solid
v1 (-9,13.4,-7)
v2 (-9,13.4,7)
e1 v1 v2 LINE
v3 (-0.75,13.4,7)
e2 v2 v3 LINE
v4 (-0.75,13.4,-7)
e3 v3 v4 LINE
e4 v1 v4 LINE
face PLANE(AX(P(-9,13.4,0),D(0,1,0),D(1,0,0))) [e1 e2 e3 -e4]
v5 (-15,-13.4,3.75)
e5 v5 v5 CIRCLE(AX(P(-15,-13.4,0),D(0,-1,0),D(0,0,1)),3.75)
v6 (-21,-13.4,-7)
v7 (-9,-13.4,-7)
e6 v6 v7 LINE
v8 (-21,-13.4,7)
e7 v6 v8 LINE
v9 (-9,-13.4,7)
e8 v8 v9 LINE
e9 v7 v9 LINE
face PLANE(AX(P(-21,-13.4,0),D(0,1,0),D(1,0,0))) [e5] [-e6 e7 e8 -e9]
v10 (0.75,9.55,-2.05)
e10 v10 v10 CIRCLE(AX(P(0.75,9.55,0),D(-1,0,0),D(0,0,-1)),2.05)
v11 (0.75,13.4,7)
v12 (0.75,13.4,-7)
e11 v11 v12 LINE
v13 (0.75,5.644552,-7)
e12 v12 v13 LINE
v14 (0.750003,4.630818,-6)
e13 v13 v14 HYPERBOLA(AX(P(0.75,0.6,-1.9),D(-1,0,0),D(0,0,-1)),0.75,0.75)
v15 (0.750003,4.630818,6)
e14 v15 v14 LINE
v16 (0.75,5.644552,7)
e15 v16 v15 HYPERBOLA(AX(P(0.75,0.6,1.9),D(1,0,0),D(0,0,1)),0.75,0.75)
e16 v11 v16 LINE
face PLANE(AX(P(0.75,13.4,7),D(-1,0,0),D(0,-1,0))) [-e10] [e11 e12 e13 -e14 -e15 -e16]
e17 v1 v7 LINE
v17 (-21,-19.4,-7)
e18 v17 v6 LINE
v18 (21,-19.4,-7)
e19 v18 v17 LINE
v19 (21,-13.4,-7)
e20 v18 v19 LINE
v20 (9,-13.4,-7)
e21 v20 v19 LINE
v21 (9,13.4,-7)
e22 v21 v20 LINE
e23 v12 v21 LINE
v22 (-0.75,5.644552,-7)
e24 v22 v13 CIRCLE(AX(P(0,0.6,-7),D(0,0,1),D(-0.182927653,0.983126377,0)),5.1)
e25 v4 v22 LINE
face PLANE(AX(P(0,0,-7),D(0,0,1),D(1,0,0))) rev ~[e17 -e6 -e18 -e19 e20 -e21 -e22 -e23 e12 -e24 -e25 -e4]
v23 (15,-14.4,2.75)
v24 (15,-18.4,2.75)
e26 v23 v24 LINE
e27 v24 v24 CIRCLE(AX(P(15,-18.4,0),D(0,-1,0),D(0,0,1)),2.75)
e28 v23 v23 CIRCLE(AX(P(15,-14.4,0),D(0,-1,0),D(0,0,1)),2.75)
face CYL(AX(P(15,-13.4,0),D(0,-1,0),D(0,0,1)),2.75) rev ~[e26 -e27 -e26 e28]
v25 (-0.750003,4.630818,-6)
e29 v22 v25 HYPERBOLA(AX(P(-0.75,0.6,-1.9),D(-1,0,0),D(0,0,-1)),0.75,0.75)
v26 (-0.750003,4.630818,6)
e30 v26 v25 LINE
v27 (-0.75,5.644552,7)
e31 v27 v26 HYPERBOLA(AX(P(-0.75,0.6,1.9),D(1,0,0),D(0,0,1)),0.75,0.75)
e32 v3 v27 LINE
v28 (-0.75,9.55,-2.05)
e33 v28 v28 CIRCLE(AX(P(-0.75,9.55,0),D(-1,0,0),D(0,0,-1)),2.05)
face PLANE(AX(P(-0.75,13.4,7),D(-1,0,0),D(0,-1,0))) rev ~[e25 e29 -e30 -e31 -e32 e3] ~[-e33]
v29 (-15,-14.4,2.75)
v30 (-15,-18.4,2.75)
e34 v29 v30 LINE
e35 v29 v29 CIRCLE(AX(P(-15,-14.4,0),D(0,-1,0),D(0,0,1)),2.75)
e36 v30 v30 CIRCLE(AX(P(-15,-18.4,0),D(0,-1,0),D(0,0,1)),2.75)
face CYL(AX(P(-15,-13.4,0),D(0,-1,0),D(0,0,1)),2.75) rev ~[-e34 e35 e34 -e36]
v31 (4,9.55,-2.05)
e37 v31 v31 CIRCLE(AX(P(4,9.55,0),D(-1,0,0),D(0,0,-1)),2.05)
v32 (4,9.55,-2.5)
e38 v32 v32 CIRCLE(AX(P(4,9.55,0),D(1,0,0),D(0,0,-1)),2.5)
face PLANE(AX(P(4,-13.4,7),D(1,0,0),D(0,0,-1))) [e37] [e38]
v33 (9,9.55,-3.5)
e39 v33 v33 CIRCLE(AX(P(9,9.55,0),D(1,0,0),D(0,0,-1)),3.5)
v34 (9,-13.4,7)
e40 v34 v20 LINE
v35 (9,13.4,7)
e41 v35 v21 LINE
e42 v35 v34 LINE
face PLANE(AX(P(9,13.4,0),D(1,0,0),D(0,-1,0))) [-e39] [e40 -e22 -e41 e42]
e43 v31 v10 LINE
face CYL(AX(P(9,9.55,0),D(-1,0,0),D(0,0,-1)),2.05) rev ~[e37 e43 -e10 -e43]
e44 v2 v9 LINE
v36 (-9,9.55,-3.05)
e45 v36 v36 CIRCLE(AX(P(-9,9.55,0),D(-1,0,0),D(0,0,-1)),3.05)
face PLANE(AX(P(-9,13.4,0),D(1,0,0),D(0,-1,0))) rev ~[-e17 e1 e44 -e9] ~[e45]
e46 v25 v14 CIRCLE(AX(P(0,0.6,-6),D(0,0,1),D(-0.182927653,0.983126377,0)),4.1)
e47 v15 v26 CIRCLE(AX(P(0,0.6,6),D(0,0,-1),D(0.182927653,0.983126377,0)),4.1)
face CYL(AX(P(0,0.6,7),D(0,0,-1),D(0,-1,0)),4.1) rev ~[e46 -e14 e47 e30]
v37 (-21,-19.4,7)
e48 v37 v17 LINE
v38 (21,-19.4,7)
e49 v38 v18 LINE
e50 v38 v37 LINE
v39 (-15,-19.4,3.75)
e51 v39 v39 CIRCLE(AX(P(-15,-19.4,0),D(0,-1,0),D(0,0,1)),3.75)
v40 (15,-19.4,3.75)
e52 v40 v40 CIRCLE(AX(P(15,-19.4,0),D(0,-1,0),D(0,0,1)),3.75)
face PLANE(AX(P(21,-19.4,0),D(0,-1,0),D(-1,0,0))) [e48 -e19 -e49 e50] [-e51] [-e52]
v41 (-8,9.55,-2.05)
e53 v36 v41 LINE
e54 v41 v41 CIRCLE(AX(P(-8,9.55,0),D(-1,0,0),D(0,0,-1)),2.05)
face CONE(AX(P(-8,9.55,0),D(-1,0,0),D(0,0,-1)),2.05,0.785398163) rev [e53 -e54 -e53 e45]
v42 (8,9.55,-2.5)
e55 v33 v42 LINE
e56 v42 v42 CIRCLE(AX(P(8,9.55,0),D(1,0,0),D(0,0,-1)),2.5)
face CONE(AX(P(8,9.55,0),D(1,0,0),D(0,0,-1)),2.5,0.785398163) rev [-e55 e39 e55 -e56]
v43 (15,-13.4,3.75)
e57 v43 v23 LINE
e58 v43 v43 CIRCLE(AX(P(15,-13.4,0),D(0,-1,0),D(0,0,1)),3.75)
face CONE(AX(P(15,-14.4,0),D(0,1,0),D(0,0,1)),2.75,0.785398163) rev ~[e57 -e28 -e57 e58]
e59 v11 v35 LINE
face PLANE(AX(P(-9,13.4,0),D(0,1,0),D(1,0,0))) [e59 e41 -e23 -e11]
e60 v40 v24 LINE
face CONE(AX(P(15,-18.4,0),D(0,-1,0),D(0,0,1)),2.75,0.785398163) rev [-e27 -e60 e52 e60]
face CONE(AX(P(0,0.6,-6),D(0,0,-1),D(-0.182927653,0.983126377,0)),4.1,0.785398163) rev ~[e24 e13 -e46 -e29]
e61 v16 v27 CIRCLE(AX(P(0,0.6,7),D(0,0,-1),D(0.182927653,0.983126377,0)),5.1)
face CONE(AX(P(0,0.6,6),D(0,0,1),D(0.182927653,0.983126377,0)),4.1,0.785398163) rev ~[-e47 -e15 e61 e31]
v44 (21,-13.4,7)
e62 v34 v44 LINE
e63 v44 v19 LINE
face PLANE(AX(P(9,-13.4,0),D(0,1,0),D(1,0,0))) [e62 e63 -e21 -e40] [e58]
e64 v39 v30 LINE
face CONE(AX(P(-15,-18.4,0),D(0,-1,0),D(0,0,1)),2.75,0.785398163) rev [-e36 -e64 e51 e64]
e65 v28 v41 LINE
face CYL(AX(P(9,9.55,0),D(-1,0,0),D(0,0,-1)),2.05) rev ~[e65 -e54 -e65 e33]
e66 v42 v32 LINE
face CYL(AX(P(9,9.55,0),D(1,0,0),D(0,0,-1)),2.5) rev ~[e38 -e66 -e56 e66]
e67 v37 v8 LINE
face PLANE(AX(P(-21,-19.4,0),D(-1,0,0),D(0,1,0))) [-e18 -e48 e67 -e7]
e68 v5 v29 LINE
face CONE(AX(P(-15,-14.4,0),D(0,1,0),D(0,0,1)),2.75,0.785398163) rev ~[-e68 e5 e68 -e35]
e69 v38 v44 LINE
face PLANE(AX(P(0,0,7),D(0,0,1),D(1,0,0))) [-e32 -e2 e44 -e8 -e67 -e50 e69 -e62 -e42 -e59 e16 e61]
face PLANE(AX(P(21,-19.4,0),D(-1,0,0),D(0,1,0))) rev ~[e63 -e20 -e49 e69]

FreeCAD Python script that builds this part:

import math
import FreeCAD as App
import Part
import Sketcher
from FreeCAD import Vector


def edges_at(feature, points):
    """Names of the edges that pass closest to the given points."""
    edges = feature.Shape.Edges
    near = lambda p: min(range(len(edges)), key=lambda i: edges[i].distToShape(Part.Vertex(*p))[0])
    return sorted({f"Edge{near(p) + 1}" for p in points})

doc = App.newDocument("Part")
body = doc.addObject("PartDesign::Body", "Body")

# Sketch on XY plane
sketch1 = body.newObject("Sketcher::SketchObject", "Sketch")
sketch1.AttachmentSupport = (doc.getObject("XY_Plane"), [""])
sketch1.MapMode = "FlatFace"
sketch1.addGeometry([
    Part.LineSegment(Vector(9, 13, 0), Vector(-9, 13, 0)),  # 0
    Part.LineSegment(Vector(-9, 13, 0), Vector(-9, -13, 0)),  # 1
    Part.LineSegment(Vector(-9, -13, 0), Vector(-21, -13, 0)),  # 2
    Part.LineSegment(Vector(-21, -13, 0), Vector(-21, -19, 0)),  # 3
    Part.LineSegment(Vector(-21, -19, 0), Vector(21, -19, 0)),  # 4
    Part.LineSegment(Vector(21, -19, 0), Vector(21, -13, 0)),  # 5
    Part.LineSegment(Vector(21, -13, 0), Vector(9, -13, 0)),  # 6
    Part.LineSegment(Vector(9, -13, 0), Vector(9, 13, 0)),  # 7
], False)
sketch1.addConstraint([
    Sketcher.Constraint("Coincident", 0, 2, 1, 1),
    Sketcher.Constraint("Coincident", 1, 2, 2, 1),
    Sketcher.Constraint("Coincident", 2, 2, 3, 1),
    Sketcher.Constraint("Coincident", 3, 2, 4, 1),
    Sketcher.Constraint("Coincident", 4, 2, 5, 1),
    Sketcher.Constraint("Coincident", 5, 2, 6, 1),
    Sketcher.Constraint("Coincident", 6, 2, 7, 1),
    Sketcher.Constraint("Coincident", 7, 2, 0, 1),
    Sketcher.Constraint("Horizontal", 0),
    Sketcher.Constraint("Vertical", 1),
    Sketcher.Constraint("Horizontal", 2),
    Sketcher.Constraint("Vertical", 3),
    Sketcher.Constraint("Horizontal", 4),
    Sketcher.Constraint("Vertical", 5),
    Sketcher.Constraint("Horizontal", 6),
    Sketcher.Constraint("Vertical", 7),
    Sketcher.Constraint("Symmetric", 0, 2, 6, 2, -1, 1),
    Sketcher.Constraint("Symmetric", 2, 2, 5, 2, -2),
    Sketcher.Constraint("DistanceX", 0, 2, 0, 1, 18.0),
    Sketcher.Constraint("DistanceX", 4, 1, 4, 2, 42.0),
    Sketcher.Constraint("DistanceY", 3, 2, 3, 1, 6.0),
    Sketcher.Constraint("DistanceY", 3, 2, 0, 2, 32.8),
])
pad1 = body.newObject("PartDesign::Pad", "Pad")
pad1.Profile = sketch1
pad1.Length = 14
pad1.Midplane = True

# Sketch on XY plane
sketch2 = body.newObject("Sketcher::SketchObject", "Sketch001")
sketch2.AttachmentSupport = (doc.getObject("XY_Plane"), [""])
sketch2.MapMode = "FlatFace"
sketch2.AttachmentOffset = App.Placement(Vector(0, 0, 7), App.Rotation())
sketch2.addGeometry(Part.Circle(Vector(0, 0.6, 0), Vector(0, 0, 1), 4.1), False)
sketch2.addConstraint([
    Sketcher.Constraint("PointOnObject", 0, 3, -2),
    Sketcher.Constraint("Diameter", 0, 8.2),
    Sketcher.Constraint("DistanceY", -1, 1, 0, 3, 0.6),
])
doc.recompute()
hole = body.newObject("PartDesign::Hole", "Hole")
hole.Profile = sketch2
hole.ThreadType = "None"
hole.Diameter = 8.2
hole.DepthType = "ThroughAll"

# Sketch on XY plane
sketch3 = body.newObject("Sketcher::SketchObject", "Sketch002")
sketch3.AttachmentSupport = (doc.getObject("XY_Plane"), [""])
sketch3.MapMode = "FlatFace"
sketch3.AttachmentOffset = App.Placement(Vector(0, 0, 7), App.Rotation())
sketch3.addGeometry([
    Part.LineSegment(Vector(0.8, 13.4, 0), Vector(-0.8, 13.4, 0)),
    Part.LineSegment(Vector(-0.8, 13.4, 0), Vector(-0.8, 4.6, 0)),
    Part.ArcOfCircle(Part.Circle(Vector(0, 0.6, 0), Vector(0, 0, 1), 4.1), math.radians(79), math.radians(101)),
    Part.LineSegment(Vector(0.8, 4.6, 0), Vector(0.8, 13.4, 0)),
], False)
sketch3.addConstraint([
    Sketcher.Constraint("Coincident", 0, 2, 1, 1),
    Sketcher.Constraint("Coincident", 1, 2, 2, 2),
    Sketcher.Constraint("Coincident", 2, 1, 3, 1),
    Sketcher.Constraint("Coincident", 3, 2, 0, 1),
    Sketcher.Constraint("Horizontal", 0),
    Sketcher.Constraint("Vertical", 1),
    Sketcher.Constraint("Vertical", 3),
    Sketcher.Constraint("Symmetric", 1, 2, 2, 1, -2),
    Sketcher.Constraint("DistanceX", 0, 2, 0, 1, 1.5),
    Sketcher.Constraint("Radius", 2, 4.1),
    Sketcher.Constraint("DistanceY", -1, 1, 2, 3, 0.6),
    Sketcher.Constraint("DistanceY", -1, 1, 0, 2, 13.4),
])
pocket1 = body.newObject("PartDesign::Pocket", "Pocket")
pocket1.Profile = sketch3
pocket1.Length = 14

# Sketch on XZ plane
sketch4 = body.newObject("Sketcher::SketchObject", "Sketch003")
sketch4.AttachmentSupport = (doc.getObject("XZ_Plane"), [""])
sketch4.MapMode = "FlatFace"
sketch4.AttachmentOffset = App.Placement(Vector(0, 0, 13.4), App.Rotation())
sketch4.addGeometry(Part.Circle(Vector(15, 0, 0), Vector(0, 0, 1), 2.8), False)
sketch4.addConstraint([
    Sketcher.Constraint("PointOnObject", 0, 3, -1),
    Sketcher.Constraint("Diameter", 0, 5.5),
    Sketcher.Constraint("DistanceX", -1, 1, 0, 3, 15.0),
])
doc.recompute()
hole2 = body.newObject("PartDesign::Hole", "Hole001")
hole2.Profile = sketch4
hole2.ThreadType = "None"
hole2.Diameter = 5.5
hole2.DepthType = "ThroughAll"
hole2.Reversed = True

# Sketch on XZ plane
sketch5 = body.newObject("Sketcher::SketchObject", "Sketch004")
sketch5.AttachmentSupport = (doc.getObject("XZ_Plane"), [""])
sketch5.MapMode = "FlatFace"
sketch5.AttachmentOffset = App.Placement(Vector(0, 0, 13.4), App.Rotation())
sketch5.addGeometry(Part.Circle(Vector(-15, 0, 0), Vector(0, 0, 1), 2.8), False)
sketch5.addConstraint([
    Sketcher.Constraint("PointOnObject", 0, 3, -1),
    Sketcher.Constraint("Diameter", 0, 5.5),
    Sketcher.Constraint("DistanceX", 0, 3, -1, 1, 15.0),
])
doc.recompute()
hole3 = body.newObject("PartDesign::Hole", "Hole002")
hole3.Profile = sketch5
hole3.ThreadType = "None"
hole3.Diameter = 5.5
hole3.DepthType = "ThroughAll"
hole3.Reversed = True

# Sketch on YZ plane
sketch6 = body.newObject("Sketcher::SketchObject", "Sketch005")
sketch6.AttachmentSupport = (doc.getObject("YZ_Plane"), [""])
sketch6.MapMode = "FlatFace"
sketch6.AttachmentOffset = App.Placement(Vector(0, 0, 9), App.Rotation())
sketch6.addGeometry(Part.Circle(Vector(9.6, 0, 0), Vector(0, 0, 1), 2), False)
sketch6.addConstraint([
    Sketcher.Constraint("PointOnObject", 0, 3, -1),
    Sketcher.Constraint("Diameter", 0, 4.1),
    Sketcher.Constraint("DistanceX", -1, 1, 0, 3, 9.55),
])
doc.recompute()
hole4 = body.newObject("PartDesign::Hole", "Hole003")
hole4.Profile = sketch6
hole4.ThreadType = "None"
hole4.Diameter = 4.1
hole4.DepthType = "ThroughAll"

# Sketch on YZ plane
sketch7 = body.newObject("Sketcher::SketchObject", "Sketch006")
sketch7.AttachmentSupport = (doc.getObject("YZ_Plane"), [""])
sketch7.MapMode = "FlatFace"
sketch7.AttachmentOffset = App.Placement(Vector(0, 0, 9), App.Rotation())
sketch7.addGeometry(Part.Circle(Vector(9.6, 0, 0), Vector(0, 0, 1), 2.5), False)
sketch7.addConstraint([
    Sketcher.Constraint("PointOnObject", 0, 3, -1),
    Sketcher.Constraint("Diameter", 0, 5.0),
    Sketcher.Constraint("DistanceX", -1, 1, 0, 3, 9.55),
])
pocket2 = body.newObject("PartDesign::Pocket", "Pocket001")
pocket2.Profile = sketch7
pocket2.Length = 5
doc.recompute()

chamfer = body.newObject("PartDesign::Chamfer", "Chamfer")
chamfer.Base = (pocket2, edges_at(pocket2, [
    (0, -3.5, 7),
    (-9, 9.55, 2.05),
    (-15, -19.4, -2.75),
    (15, -19.4, -2.75),
    (0, -3.5, -7),
    (15, -13.4, -2.75),
    (-15, -13.4, -2.75),
    (9, 9.55, 2.5),
]))
chamfer.Size = 1

doc.recompute()
